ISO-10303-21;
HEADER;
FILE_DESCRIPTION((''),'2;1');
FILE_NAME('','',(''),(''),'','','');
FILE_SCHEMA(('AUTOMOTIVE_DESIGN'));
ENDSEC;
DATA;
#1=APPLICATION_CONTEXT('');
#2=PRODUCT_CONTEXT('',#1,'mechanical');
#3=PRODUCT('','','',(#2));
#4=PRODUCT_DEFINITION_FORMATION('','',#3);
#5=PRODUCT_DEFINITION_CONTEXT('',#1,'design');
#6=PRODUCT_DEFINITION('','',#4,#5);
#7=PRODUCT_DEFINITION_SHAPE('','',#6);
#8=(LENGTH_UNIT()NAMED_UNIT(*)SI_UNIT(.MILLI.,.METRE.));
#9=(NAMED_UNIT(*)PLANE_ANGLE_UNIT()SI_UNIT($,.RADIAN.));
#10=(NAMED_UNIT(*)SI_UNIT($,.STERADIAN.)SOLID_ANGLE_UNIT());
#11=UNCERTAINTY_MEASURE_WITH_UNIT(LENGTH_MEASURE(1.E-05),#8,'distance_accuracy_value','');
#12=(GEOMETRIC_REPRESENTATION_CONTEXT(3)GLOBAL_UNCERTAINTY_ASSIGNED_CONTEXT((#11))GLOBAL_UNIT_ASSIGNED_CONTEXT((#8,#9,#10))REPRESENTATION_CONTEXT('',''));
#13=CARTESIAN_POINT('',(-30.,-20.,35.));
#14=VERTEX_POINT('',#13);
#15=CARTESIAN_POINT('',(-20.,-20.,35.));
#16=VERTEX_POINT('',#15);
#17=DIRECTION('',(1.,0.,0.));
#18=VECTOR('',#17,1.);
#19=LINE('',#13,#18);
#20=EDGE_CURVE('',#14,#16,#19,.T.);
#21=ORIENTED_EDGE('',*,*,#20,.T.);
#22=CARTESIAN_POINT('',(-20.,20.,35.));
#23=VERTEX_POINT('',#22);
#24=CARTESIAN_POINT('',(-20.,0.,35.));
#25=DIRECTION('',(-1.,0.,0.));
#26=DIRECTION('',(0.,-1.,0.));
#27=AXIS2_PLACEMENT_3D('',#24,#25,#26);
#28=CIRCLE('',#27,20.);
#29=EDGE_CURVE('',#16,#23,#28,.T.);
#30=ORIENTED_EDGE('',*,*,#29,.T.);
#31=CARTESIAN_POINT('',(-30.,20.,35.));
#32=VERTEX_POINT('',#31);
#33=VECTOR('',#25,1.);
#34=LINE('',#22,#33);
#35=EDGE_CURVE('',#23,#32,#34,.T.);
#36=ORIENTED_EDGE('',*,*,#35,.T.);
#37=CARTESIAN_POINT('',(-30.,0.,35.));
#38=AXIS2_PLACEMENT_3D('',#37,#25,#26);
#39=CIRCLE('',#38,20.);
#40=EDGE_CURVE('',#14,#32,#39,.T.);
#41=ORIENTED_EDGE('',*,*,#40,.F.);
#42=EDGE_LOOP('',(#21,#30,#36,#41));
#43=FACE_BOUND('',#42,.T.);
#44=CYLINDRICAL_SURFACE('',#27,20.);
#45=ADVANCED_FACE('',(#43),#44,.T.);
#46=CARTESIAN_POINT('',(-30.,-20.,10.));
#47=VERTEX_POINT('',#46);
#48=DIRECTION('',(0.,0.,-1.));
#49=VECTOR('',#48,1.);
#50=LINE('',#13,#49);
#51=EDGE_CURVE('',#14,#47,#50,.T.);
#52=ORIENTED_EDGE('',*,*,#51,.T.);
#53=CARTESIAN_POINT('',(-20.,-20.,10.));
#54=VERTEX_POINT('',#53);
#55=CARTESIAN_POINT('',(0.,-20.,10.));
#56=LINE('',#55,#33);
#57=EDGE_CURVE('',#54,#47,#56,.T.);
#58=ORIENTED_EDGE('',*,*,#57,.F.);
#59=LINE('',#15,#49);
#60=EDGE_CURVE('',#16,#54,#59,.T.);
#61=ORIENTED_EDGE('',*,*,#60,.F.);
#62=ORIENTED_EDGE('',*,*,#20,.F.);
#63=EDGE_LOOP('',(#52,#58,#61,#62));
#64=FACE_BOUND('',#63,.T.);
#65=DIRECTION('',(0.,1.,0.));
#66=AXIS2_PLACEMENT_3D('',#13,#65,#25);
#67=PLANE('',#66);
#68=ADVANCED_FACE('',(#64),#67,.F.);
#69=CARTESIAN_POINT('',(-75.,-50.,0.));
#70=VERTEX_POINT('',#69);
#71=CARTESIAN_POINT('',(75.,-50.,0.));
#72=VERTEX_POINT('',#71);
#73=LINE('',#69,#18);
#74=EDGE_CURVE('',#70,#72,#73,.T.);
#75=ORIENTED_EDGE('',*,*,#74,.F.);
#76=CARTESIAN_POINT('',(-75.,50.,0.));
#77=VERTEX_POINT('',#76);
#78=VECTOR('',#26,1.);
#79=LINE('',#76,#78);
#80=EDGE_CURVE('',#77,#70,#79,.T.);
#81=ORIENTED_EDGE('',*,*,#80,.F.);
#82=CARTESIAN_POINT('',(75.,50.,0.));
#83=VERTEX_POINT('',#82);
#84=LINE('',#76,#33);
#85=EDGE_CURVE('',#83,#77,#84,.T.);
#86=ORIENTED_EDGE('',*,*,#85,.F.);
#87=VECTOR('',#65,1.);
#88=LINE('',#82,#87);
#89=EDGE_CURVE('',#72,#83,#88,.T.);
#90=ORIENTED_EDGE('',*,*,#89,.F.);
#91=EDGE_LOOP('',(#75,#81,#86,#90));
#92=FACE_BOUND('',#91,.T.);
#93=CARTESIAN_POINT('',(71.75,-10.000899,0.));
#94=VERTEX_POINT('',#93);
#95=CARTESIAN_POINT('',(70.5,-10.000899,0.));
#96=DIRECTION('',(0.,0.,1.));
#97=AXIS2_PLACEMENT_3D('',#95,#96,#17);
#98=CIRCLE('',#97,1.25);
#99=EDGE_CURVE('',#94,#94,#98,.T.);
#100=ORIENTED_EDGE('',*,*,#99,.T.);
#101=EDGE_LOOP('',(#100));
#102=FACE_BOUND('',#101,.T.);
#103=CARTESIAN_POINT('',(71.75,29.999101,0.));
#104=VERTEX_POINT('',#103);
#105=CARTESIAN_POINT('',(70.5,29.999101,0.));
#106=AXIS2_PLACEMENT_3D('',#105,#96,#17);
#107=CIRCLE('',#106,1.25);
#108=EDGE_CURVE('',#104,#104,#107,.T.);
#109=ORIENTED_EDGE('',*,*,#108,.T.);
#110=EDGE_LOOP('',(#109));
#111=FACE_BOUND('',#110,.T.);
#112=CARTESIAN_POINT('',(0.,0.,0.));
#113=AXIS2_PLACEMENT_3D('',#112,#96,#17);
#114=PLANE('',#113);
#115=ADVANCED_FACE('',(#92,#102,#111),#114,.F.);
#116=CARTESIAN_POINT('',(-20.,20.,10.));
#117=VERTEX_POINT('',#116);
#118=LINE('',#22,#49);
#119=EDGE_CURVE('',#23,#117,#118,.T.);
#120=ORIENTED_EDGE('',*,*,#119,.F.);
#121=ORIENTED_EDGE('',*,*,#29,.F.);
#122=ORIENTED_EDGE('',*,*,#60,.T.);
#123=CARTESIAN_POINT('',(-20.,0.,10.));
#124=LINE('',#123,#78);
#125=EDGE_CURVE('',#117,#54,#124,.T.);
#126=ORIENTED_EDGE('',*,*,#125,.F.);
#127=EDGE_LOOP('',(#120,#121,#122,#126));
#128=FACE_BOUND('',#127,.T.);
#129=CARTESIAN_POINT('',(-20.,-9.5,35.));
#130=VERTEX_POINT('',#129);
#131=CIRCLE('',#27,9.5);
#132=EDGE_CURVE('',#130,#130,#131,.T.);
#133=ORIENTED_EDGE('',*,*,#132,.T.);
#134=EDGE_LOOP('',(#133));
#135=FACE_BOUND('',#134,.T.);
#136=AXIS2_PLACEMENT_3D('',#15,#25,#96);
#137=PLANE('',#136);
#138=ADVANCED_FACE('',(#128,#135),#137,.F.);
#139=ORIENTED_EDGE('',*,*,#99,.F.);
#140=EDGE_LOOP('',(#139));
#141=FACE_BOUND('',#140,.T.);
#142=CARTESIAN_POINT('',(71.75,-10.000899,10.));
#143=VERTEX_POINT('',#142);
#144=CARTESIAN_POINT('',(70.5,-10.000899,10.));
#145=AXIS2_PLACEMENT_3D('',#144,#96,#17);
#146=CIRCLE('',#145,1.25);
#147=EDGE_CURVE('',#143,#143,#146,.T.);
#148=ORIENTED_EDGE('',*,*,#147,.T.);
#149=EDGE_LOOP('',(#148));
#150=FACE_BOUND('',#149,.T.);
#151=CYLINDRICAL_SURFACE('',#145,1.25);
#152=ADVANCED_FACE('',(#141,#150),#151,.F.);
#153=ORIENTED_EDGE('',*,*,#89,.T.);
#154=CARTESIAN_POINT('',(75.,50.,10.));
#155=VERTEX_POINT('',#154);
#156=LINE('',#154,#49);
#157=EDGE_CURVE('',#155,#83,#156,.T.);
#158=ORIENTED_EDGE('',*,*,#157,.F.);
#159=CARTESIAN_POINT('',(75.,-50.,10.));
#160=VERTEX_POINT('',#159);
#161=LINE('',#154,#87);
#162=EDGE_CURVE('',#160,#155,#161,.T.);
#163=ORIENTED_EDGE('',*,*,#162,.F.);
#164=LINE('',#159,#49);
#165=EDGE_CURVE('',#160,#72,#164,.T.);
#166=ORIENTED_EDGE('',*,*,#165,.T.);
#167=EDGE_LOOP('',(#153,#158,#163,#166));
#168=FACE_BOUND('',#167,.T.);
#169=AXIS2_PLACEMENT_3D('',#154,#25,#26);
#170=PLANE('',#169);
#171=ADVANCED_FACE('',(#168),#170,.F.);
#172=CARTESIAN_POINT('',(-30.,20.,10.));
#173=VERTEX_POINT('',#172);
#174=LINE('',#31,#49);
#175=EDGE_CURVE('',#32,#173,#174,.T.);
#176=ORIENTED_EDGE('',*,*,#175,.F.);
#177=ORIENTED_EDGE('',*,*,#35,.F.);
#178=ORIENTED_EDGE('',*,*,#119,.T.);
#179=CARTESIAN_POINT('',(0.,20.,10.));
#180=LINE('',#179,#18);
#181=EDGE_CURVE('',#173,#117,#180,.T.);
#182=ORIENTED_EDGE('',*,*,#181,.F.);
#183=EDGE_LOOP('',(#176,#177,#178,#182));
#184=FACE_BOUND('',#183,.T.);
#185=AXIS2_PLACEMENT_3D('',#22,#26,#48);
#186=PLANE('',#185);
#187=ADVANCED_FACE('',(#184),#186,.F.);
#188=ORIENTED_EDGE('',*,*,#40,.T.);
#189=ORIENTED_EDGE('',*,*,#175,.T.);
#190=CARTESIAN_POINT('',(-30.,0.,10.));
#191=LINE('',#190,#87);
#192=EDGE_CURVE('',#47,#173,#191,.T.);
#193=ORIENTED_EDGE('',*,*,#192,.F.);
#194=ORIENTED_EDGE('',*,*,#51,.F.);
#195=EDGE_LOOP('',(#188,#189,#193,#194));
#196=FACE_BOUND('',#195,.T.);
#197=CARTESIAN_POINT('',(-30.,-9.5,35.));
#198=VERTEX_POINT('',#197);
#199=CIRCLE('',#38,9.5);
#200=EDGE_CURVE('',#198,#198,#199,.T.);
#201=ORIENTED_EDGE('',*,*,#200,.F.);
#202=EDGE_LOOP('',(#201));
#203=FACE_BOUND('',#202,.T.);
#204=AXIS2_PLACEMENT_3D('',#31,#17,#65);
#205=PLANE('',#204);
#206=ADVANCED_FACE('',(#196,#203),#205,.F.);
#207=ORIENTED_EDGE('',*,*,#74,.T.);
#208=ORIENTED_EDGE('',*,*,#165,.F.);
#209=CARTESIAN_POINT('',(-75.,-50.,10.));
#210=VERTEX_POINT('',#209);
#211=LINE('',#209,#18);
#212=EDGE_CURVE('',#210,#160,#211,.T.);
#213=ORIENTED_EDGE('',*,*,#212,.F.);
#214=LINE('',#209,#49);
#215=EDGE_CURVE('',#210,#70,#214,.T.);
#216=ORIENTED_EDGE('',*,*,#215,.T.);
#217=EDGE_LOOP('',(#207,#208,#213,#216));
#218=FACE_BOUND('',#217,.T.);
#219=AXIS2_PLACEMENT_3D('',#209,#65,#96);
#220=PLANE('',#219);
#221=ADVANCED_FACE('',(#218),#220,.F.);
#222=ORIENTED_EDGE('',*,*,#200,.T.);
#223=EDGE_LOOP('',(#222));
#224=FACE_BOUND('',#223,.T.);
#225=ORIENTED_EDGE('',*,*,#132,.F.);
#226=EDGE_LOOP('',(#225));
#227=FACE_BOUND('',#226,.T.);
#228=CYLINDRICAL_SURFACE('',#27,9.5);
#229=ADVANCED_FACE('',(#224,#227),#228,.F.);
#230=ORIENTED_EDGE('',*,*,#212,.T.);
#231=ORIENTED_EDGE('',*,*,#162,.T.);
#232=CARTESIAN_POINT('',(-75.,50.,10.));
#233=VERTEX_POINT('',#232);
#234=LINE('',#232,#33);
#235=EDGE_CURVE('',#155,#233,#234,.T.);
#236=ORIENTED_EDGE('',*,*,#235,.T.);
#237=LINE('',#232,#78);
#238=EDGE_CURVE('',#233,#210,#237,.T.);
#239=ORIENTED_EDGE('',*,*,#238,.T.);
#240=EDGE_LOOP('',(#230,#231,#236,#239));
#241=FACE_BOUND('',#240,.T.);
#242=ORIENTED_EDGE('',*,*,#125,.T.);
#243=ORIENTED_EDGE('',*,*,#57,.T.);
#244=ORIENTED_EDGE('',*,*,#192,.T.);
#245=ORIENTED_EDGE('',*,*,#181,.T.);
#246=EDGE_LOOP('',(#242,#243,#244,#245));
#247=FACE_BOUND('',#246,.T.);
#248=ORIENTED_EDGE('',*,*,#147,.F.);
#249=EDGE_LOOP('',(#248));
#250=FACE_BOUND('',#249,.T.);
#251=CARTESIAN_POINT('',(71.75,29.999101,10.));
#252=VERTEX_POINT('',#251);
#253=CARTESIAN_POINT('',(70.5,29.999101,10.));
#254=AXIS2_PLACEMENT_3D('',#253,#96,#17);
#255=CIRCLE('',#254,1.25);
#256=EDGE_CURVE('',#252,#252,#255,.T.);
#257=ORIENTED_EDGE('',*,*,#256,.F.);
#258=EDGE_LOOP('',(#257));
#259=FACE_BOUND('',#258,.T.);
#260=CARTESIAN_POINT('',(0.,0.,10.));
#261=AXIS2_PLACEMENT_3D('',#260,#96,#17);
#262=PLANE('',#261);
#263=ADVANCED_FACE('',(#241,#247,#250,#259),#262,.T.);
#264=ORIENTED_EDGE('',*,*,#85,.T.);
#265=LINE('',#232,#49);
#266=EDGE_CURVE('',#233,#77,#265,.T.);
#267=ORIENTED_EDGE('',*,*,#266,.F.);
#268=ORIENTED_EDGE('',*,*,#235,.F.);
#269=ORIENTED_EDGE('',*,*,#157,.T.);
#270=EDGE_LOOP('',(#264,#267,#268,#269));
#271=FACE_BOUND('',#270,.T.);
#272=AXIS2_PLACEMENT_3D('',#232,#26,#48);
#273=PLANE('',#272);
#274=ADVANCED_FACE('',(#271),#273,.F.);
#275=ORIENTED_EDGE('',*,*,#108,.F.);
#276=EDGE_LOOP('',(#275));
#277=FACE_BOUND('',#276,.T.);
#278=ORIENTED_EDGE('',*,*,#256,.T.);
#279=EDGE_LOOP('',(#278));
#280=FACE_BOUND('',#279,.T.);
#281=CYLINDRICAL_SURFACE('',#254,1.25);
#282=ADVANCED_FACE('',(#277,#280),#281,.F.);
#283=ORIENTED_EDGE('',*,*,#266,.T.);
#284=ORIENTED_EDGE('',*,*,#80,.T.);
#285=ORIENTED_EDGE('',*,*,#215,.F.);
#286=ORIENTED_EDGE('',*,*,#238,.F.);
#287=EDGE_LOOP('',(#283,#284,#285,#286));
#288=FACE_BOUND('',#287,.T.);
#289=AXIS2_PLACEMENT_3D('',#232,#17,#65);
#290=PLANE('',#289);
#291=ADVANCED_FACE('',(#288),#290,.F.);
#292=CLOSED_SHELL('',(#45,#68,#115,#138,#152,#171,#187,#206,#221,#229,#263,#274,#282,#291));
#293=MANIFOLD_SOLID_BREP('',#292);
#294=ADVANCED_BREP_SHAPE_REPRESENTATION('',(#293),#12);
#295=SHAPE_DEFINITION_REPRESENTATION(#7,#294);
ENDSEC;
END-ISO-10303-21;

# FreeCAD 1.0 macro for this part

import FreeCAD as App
import Part
import Sketcher

V = App.Vector


def add_polygon(sketch, points):
    """Adds a closed chain of lines whose ends are joined by coincident constraints."""
    first, n = sketch.GeometryCount, len(points)
    for a, b in zip(points, points[1:] + points[:1]):
        sketch.addGeometry(Part.LineSegment(App.Vector(*a, 0), App.Vector(*b, 0)), False)
    for i in range(n):
        sketch.addConstraint(Sketcher.Constraint("Coincident", first + i, 2, first + (i + 1) % n, 1))

doc = App.newDocument("Part")
params = doc.addObject("Spreadsheet::Sheet", "Params")
for row, (alias, value) in enumerate([
    ("sketch1_width", "150 mm"),
    ("sketch1_height", "100 mm"),
    ("pad1_length", "10 mm"),
    ("sketch2_width", "10 mm"),
    ("sketch2_height", "40 mm"),
    ("pad2_length", "35 mm"),
    ("sketch3_diameter", "40 mm"),
    ("pad3_length", "10 mm"),
    ("sketch4_diameter", "19 mm"),
    ("pocket1_length", "10 mm"),
    ("sketch5_diameter", "2.5 mm"),
    ("hole_diameter", "2.5 mm"),
], start=1):
    params.set(f"A{row}", alias)
    params.set(f"B{row}", "=" + value)
    params.setAlias(f"B{row}", alias)

body = doc.addObject("PartDesign::Body", "Body")

# Sketch on XY plane
sketch1 = body.newObject("Sketcher::SketchObject", "Sketch")
sketch1.AttachmentSupport = (doc.getObject("XY_Plane"), [""])
sketch1.MapMode = "FlatFace"
add_polygon(sketch1, [(-75, 50), (-75, -50), (75, -50), (75, 50)])  # lines 0-3
sketch1.addConstraint([
    Sketcher.Constraint("Vertical", 0),
    Sketcher.Constraint("Horizontal", 1),
    Sketcher.Constraint("Vertical", 2),
    Sketcher.Constraint("Horizontal", 3),
    Sketcher.Constraint("Symmetric", 0, 2, 2, 2, -1, 1),
    Sketcher.Constraint("DistanceX", 1, 1, 1, 2, 150.0),
    Sketcher.Constraint("DistanceY", 0, 2, 0, 1, 100.0),
])
sketch1.setExpression("Constraints[9]", "Params.sketch1_width")
sketch1.setExpression("Constraints[10]", "Params.sketch1_height")
pad1 = body.newObject("PartDesign::Pad", "Pad")
pad1.Profile = sketch1
pad1.setExpression("Length", "Params.pad1_length")

# Sketch on XY plane
sketch2 = body.newObject("Sketcher::SketchObject", "Sketch001")
sketch2.AttachmentSupport = (doc.getObject("XY_Plane"), [""])
sketch2.MapMode = "FlatFace"
add_polygon(sketch2, [(-30, 20), (-30, -20), (-20, -20), (-20, 20)])  # lines 0-3
sketch2.addConstraint([
    Sketcher.Constraint("Vertical", 0),
    Sketcher.Constraint("Horizontal", 1),
    Sketcher.Constraint("Vertical", 2),
    Sketcher.Constraint("Horizontal", 3),
    Sketcher.Constraint("DistanceX", 1, 1, 1, 2, 10.0),
    Sketcher.Constraint("DistanceY", 0, 2, 0, 1, 40.0),
    Sketcher.Constraint("DistanceX", 0, 2, -1, 1, 30.0),
    Sketcher.Constraint("DistanceY", 0, 2, -1, 1, 20.0),
])
sketch2.setExpression("Constraints[8]", "Params.sketch2_width")
sketch2.setExpression("Constraints[9]", "Params.sketch2_height")
pad2 = body.newObject("PartDesign::Pad", "Pad001")
pad2.Profile = sketch2
pad2.setExpression("Length", "Params.pad2_length")

# Sketch on YZ plane
sketch3 = body.newObject("Sketcher::SketchObject", "Sketch002")
sketch3.AttachmentSupport = (doc.getObject("YZ_Plane"), [""])
sketch3.MapMode = "FlatFace"
sketch3.AttachmentOffset = App.Placement(V(0, 0, -30), App.Rotation())
sketch3.addGeometry(Part.Circle(V(0, 35, 0), V(0, 0, 1), 20), False)
sketch3.addConstraint([
    Sketcher.Constraint("PointOnObject", 0, 3, -2),
    Sketcher.Constraint("Diameter", 0, 40.0),
    Sketcher.Constraint("DistanceY", -1, 1, 0, 3, 35.0),
])
sketch3.setExpression("Constraints[1]", "Params.sketch3_diameter")
pad3 = body.newObject("PartDesign::Pad", "Pad002")
pad3.Profile = sketch3
pad3.setExpression("Length", "Params.pad3_length")

# Sketch on YZ plane
sketch4 = body.newObject("Sketcher::SketchObject", "Sketch003")
sketch4.AttachmentSupport = (doc.getObject("YZ_Plane"), [""])
sketch4.MapMode = "FlatFace"
sketch4.AttachmentOffset = App.Placement(V(0, 0, -30), App.Rotation())
sketch4.addGeometry(Part.Circle(V(0, 35, 0), V(0, 0, 1), 10), False)
sketch4.addConstraint([
    Sketcher.Constraint("PointOnObject", 0, 3, -2),
    Sketcher.Constraint("Diameter", 0, 19.0),
    Sketcher.Constraint("DistanceY", -1, 1, 0, 3, 35.0),
])
sketch4.setExpression("Constraints[1]", "Params.sketch4_diameter")
pocket1 = body.newObject("PartDesign::Pocket", "Pocket")
pocket1.Profile = sketch4
pocket1.setExpression("Length", "Params.pocket1_length")
pocket1.Reversed = True

# Sketch on XY plane
sketch5 = body.newObject("Sketcher::SketchObject", "Sketch004")
sketch5.AttachmentSupport = (doc.getObject("XY_Plane"), [""])
sketch5.MapMode = "FlatFace"
sketch5.AttachmentOffset = App.Placement(V(0, 0, 10), App.Rotation())
sketch5.addGeometry([
    Part.Circle(V(70.5, -10, 0), V(0, 0, 1), 1.2),
    Part.Circle(V(70.5, 30, 0), V(0, 0, 1), 1.2),
], False)
sketch5.addConstraint([
    Sketcher.Constraint("Equal", 0, 1),
    Sketcher.Constraint("Vertical", 0, 3, 1, 3),
    Sketcher.Constraint("Diameter", 0, 2.5),
    Sketcher.Constraint("DistanceY", 0, 3, 1, 3, 40.0),
    Sketcher.Constraint("DistanceX", -1, 1, 0, 3, 70.5),
    Sketcher.Constraint("DistanceY", 0, 3, -1, 1, 10.000899),
])
sketch5.setExpression("Constraints[2]", "Params.sketch5_diameter")
doc.recompute()
hole = body.newObject("PartDesign::Hole", "Hole")
hole.Profile = sketch5
hole.ThreadType = "None"
hole.setExpression("Diameter", "Params.hole_diameter")
hole.DepthType = "ThroughAll"

doc.recompute()
